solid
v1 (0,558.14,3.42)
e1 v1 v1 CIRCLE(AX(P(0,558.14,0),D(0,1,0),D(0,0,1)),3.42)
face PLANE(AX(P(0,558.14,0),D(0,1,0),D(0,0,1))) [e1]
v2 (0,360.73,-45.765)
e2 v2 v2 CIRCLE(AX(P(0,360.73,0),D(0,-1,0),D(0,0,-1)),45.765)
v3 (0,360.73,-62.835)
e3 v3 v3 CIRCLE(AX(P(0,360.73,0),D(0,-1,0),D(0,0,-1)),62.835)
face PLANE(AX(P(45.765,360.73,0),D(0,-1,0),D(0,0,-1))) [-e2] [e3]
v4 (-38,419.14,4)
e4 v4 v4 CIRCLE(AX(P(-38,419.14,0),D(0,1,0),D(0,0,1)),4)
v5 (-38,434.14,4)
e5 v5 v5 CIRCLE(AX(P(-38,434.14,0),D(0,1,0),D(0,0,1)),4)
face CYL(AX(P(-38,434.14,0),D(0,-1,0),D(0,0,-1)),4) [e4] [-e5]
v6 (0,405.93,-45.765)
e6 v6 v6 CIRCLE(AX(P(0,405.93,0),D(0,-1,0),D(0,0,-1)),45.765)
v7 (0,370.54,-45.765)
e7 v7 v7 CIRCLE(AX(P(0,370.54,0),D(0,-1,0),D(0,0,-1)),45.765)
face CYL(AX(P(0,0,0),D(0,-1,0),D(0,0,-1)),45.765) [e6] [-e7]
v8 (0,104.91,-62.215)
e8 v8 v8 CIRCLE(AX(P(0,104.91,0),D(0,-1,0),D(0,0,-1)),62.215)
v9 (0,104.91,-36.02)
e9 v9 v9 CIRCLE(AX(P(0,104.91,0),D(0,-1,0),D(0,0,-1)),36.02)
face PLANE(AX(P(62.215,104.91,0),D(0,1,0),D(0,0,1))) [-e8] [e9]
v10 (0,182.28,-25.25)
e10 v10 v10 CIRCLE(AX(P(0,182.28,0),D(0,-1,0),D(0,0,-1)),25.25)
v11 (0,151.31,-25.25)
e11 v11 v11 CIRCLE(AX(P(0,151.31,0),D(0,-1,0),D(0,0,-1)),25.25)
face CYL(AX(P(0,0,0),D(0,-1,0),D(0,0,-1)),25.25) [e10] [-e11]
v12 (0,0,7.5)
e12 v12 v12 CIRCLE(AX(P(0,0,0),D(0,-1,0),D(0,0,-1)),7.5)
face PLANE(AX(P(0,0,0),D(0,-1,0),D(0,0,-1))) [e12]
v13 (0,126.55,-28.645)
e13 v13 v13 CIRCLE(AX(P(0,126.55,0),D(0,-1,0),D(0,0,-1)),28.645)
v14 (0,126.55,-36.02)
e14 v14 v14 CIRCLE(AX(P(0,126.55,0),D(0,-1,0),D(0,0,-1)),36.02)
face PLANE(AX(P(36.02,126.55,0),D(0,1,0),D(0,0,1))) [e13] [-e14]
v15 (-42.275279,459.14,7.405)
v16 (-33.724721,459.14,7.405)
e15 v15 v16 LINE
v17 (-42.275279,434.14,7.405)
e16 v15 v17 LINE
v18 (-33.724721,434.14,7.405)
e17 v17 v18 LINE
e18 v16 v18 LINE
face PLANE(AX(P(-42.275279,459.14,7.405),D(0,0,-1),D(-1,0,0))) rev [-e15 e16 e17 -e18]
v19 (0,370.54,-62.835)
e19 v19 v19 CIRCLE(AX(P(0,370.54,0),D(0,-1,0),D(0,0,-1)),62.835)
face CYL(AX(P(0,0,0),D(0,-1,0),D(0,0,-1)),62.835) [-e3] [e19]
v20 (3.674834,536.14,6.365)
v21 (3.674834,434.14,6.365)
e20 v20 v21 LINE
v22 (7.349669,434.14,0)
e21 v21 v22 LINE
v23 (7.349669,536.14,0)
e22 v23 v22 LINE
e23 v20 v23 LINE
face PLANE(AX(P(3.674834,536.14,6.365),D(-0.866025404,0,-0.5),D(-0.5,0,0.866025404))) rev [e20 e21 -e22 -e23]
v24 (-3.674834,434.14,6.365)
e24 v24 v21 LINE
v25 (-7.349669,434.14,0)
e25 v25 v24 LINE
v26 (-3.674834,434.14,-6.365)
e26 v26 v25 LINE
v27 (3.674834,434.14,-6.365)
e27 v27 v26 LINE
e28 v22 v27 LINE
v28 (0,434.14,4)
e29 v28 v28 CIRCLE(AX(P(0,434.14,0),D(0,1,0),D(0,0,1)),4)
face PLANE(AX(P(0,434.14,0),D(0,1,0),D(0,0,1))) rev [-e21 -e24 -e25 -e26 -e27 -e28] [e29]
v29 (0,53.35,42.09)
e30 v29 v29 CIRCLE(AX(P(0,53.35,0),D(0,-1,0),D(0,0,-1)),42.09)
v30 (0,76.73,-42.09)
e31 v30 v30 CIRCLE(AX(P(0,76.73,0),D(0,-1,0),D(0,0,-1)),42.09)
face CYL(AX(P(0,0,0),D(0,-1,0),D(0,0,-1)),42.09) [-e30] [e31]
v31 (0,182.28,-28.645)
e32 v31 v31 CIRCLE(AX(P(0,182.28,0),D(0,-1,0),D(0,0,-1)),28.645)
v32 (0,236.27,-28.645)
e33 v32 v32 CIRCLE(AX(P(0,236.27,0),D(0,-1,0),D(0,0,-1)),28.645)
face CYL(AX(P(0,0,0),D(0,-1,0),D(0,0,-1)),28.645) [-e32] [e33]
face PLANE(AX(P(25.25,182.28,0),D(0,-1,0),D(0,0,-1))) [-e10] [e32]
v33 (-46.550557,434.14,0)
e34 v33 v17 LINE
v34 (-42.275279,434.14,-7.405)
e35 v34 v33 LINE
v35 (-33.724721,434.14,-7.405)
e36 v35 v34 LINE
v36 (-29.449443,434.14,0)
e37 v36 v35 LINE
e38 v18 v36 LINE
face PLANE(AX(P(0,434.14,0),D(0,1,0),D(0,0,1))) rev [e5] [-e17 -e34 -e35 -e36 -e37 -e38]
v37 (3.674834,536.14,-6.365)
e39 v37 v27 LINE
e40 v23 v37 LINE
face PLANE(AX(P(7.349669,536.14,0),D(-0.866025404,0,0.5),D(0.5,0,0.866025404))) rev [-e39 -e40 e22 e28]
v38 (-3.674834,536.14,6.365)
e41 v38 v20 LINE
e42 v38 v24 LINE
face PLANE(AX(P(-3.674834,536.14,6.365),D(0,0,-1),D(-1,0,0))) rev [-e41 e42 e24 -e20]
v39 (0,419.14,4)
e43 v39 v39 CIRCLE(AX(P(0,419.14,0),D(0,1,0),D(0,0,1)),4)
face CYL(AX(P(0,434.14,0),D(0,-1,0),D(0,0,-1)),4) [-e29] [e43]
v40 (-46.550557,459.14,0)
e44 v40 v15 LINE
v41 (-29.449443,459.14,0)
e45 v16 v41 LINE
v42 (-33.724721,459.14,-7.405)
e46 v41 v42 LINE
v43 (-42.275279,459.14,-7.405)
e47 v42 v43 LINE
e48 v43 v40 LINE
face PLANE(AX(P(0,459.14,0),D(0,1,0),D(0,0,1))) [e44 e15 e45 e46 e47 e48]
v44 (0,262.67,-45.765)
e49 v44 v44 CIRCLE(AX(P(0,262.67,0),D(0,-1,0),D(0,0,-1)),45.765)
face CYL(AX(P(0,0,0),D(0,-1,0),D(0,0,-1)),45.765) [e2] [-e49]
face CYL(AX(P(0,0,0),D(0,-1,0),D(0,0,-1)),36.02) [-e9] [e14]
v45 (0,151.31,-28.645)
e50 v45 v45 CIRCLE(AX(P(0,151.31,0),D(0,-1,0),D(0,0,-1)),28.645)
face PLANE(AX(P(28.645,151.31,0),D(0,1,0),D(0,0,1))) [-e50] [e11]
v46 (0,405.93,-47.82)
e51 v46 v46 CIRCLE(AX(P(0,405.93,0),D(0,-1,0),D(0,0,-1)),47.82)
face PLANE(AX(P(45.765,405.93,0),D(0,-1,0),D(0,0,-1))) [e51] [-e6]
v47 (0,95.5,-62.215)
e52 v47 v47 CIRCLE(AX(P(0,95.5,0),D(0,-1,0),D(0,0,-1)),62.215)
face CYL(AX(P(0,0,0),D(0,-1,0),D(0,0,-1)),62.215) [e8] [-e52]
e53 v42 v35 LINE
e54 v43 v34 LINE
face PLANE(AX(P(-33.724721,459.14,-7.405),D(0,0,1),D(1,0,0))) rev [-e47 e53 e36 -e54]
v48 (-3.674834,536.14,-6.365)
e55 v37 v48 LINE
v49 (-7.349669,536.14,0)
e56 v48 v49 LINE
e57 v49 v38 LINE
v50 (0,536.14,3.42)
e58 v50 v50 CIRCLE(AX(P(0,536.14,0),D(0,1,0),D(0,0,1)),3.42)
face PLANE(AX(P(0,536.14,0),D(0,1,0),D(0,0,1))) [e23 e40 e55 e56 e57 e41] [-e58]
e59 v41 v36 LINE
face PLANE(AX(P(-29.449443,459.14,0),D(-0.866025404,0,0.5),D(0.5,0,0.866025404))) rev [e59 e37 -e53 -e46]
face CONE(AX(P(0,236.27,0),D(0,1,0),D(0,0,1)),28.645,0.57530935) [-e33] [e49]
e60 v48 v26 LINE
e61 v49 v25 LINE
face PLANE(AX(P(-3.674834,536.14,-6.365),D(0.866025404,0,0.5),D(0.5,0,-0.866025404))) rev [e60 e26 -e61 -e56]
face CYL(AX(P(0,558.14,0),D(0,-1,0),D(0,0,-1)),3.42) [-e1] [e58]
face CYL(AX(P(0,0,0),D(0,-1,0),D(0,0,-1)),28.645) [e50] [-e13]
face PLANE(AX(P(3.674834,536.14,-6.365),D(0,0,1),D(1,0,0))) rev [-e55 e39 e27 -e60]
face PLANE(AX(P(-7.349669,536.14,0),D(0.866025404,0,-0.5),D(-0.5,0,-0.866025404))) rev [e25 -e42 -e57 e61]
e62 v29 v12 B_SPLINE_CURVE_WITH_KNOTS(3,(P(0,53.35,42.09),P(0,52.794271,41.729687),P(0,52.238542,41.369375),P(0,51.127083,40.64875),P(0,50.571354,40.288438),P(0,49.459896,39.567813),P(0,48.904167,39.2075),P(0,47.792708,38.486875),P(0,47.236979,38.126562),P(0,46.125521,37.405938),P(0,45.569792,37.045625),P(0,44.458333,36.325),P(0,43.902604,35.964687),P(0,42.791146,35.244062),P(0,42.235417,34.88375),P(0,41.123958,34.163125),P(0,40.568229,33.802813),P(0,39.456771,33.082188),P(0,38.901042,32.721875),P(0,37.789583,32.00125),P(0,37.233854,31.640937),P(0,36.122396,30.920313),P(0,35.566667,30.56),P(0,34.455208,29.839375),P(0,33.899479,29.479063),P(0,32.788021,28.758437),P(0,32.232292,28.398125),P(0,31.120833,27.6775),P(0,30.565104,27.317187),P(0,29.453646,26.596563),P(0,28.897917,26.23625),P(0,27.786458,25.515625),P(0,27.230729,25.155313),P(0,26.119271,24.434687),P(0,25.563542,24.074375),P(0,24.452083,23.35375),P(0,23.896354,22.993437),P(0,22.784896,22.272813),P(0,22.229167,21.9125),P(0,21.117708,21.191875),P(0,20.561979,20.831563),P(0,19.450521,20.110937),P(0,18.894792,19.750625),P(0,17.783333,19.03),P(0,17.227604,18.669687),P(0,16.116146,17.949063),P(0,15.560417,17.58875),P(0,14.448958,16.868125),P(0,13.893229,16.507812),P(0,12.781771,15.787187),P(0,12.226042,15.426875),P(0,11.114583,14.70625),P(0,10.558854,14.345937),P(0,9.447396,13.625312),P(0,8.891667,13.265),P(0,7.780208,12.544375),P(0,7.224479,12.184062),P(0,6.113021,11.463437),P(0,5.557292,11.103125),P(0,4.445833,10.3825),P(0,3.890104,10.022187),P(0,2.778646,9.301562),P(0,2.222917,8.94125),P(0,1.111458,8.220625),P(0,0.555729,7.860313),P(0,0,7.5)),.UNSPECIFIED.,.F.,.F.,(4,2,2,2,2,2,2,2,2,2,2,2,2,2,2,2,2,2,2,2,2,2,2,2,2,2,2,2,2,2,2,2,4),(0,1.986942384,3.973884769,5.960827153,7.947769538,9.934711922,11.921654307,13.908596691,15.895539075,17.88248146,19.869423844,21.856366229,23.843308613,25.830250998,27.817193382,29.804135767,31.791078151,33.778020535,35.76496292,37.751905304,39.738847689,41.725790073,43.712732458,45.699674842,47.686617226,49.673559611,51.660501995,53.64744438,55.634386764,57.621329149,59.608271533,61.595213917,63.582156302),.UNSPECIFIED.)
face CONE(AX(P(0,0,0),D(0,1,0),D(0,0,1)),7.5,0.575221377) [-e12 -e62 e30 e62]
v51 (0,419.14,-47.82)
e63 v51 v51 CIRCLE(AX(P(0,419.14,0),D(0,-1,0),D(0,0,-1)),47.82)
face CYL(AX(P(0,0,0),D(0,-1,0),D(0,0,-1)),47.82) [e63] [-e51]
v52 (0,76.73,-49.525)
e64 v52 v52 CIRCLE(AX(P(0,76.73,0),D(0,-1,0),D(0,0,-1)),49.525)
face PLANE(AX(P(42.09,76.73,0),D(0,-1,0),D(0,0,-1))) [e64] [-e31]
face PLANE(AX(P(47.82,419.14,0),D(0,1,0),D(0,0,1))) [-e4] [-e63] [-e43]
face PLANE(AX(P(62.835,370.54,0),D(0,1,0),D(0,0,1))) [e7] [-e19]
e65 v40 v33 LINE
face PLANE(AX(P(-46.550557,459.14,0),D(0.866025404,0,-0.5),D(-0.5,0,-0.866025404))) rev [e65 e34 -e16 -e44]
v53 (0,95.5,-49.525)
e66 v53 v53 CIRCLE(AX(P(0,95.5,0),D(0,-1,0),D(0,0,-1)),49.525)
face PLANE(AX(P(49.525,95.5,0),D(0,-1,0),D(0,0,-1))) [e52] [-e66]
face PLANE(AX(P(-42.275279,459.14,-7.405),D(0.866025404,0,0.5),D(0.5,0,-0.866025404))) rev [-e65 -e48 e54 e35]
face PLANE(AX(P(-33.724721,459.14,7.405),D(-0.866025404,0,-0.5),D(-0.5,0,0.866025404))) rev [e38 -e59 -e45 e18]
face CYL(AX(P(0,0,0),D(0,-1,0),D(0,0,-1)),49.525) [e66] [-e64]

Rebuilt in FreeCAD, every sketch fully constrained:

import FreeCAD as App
import Part
import Sketcher

V = App.Vector
Q = App.Units.Quantity

doc = App.newDocument("Part")
params = doc.addObject("Spreadsheet::Sheet", "Params")
for row, (alias, value) in enumerate([
    ("sketch1_width", "7.5 mm"),
    ("sketch1_width2", "12.69 mm"),
    ("sketch1_width3", "17.07 mm"),
    ("sketch1_width4", "47.82 mm"),
    ("sketch1_height", "23.38 mm"),
    ("revolution_angle", "360 deg"),
    ("sketch2_diameter", "8 mm"),
    ("pad1_length", "15 mm"),
    ("pad2_length", "102 mm"),
    ("sketch4_diameter", "6.84 mm"),
    ("pad3_length", "22 mm"),
    ("pad4_length", "25 mm"),
], start=1):
    params.set(f"A{row}", alias)
    params.set(f"B{row}", "=" + value)
    params.setAlias(f"B{row}", alias)

body = doc.addObject("PartDesign::Body", "Body")

# Sketch on XY plane
sketch1 = body.newObject("Sketcher::SketchObject", "Sketch")
sketch1.AttachmentSupport = (doc.getObject("XY_Plane"), [""])
sketch1.MapMode = "FlatFace"
sketch1.addGeometry([
    Part.LineSegment(V(0, 0, 0), V(7.5, 0, 0)),  # 0
    Part.LineSegment(V(7.5, 0, 0), V(42.1, 53.4, 0)),  # 1
    Part.LineSegment(V(42.1, 53.4, 0), V(42.1, 76.7, 0)),  # 2
    Part.LineSegment(V(42.1, 76.7, 0), V(49.5, 76.7, 0)),  # 3
    Part.LineSegment(V(49.5, 76.7, 0), V(49.5, 95.5, 0)),  # 4
    Part.LineSegment(V(49.5, 95.5, 0), V(62.2, 95.5, 0)),  # 5
    Part.LineSegment(V(62.2, 95.5, 0), V(62.2, 104.9, 0)),  # 6
    Part.LineSegment(V(62.2, 104.9, 0), V(36, 104.9, 0)),  # 7
    Part.LineSegment(V(36, 104.9, 0), V(36, 126.5, 0)),  # 8
    Part.LineSegment(V(36, 126.5, 0), V(28.6, 126.5, 0)),  # 9
    Part.LineSegment(V(28.6, 126.5, 0), V(28.6, 151.3, 0)),  # 10
    Part.LineSegment(V(28.6, 151.3, 0), V(25.2, 151.3, 0)),  # 11
    Part.LineSegment(V(25.2, 151.3, 0), V(25.2, 182.3, 0)),  # 12
    Part.LineSegment(V(25.2, 182.3, 0), V(28.6, 182.3, 0)),  # 13
    Part.LineSegment(V(28.6, 182.3, 0), V(28.6, 236.3, 0)),  # 14
    Part.LineSegment(V(28.6, 236.3, 0), V(45.8, 262.7, 0)),  # 15
    Part.LineSegment(V(45.8, 262.7, 0), V(45.8, 360.7, 0)),  # 16
    Part.LineSegment(V(45.8, 360.7, 0), V(62.8, 360.7, 0)),  # 17
    Part.LineSegment(V(62.8, 360.7, 0), V(62.8, 370.5, 0)),  # 18
    Part.LineSegment(V(62.8, 370.5, 0), V(45.8, 370.5, 0)),  # 19
    Part.LineSegment(V(45.8, 370.5, 0), V(45.8, 405.9, 0)),  # 20
    Part.LineSegment(V(45.8, 405.9, 0), V(47.8, 405.9, 0)),  # 21
    Part.LineSegment(V(47.8, 405.9, 0), V(47.8, 419.1, 0)),  # 22
    Part.LineSegment(V(47.8, 419.1, 0), V(0, 419.1, 0)),  # 23
    Part.LineSegment(V(0, 419.1, 0), V(0, 0, 0)),  # 24
], False)
sketch1.addConstraint([
    Sketcher.Constraint("Coincident", 0, 2, 1, 1),
    Sketcher.Constraint("Coincident", 1, 2, 2, 1),
    Sketcher.Constraint("Coincident", 2, 2, 3, 1),
    Sketcher.Constraint("Coincident", 3, 2, 4, 1),
    Sketcher.Constraint("Coincident", 4, 2, 5, 1),
    Sketcher.Constraint("Coincident", 5, 2, 6, 1),
    Sketcher.Constraint("Coincident", 6, 2, 7, 1),
    Sketcher.Constraint("Coincident", 7, 2, 8, 1),
    Sketcher.Constraint("Coincident", 8, 2, 9, 1),
    Sketcher.Constraint("Coincident", 9, 2, 10, 1),
    Sketcher.Constraint("Coincident", 10, 2, 11, 1),
    Sketcher.Constraint("Coincident", 11, 2, 12, 1),
    Sketcher.Constraint("Coincident", 12, 2, 13, 1),
    Sketcher.Constraint("Coincident", 13, 2, 14, 1),
    Sketcher.Constraint("Coincident", 14, 2, 15, 1),
    Sketcher.Constraint("Coincident", 15, 2, 16, 1),
    Sketcher.Constraint("Coincident", 16, 2, 17, 1),
    Sketcher.Constraint("Coincident", 17, 2, 18, 1),
    Sketcher.Constraint("Coincident", 18, 2, 19, 1),
    Sketcher.Constraint("Coincident", 19, 2, 20, 1),
    Sketcher.Constraint("Coincident", 20, 2, 21, 1),
    Sketcher.Constraint("Coincident", 21, 2, 22, 1),
    Sketcher.Constraint("Coincident", 22, 2, 23, 1),
    Sketcher.Constraint("Coincident", 23, 2, 24, 1),
    Sketcher.Constraint("Coincident", 24, 2, 0, 1),
    Sketcher.Constraint("Horizontal", 0),
    Sketcher.Constraint("Vertical", 2),
    Sketcher.Constraint("Horizontal", 3),
    Sketcher.Constraint("Vertical", 4),
    Sketcher.Constraint("Horizontal", 5),
    Sketcher.Constraint("Vertical", 6),
    Sketcher.Constraint("Horizontal", 7),
    Sketcher.Constraint("Vertical", 8),
    Sketcher.Constraint("Horizontal", 9),
    Sketcher.Constraint("Vertical", 10),
    Sketcher.Constraint("Horizontal", 11),
    Sketcher.Constraint("Vertical", 12),
    Sketcher.Constraint("Horizontal", 13),
    Sketcher.Constraint("Vertical", 14),
    Sketcher.Constraint("Vertical", 16),
    Sketcher.Constraint("Horizontal", 17),
    Sketcher.Constraint("Vertical", 18),
    Sketcher.Constraint("Horizontal", 19),
    Sketcher.Constraint("Vertical", 20),
    Sketcher.Constraint("Horizontal", 21),
    Sketcher.Constraint("Vertical", 22),
    Sketcher.Constraint("Horizontal", 23),
    Sketcher.Constraint("Vertical", 24),
    Sketcher.Constraint("Coincident", 24, 2, -1, 1),
    Sketcher.Constraint("Vertical", 10, 2, 13, 2),
    Sketcher.Constraint("Vertical", 16, 2, 19, 2),
    Sketcher.Constraint("DistanceX", 0, 1, 0, 2, Q("7.5 mm")),
    Sketcher.Constraint("DistanceX", 5, 1, 5, 2, Q("12.69 mm")),
    Sketcher.Constraint("DistanceX", 17, 1, 17, 2, Q("17.07 mm")),
    Sketcher.Constraint("DistanceX", 23, 2, 23, 1, Q("47.82 mm")),
    Sketcher.Constraint("DistanceY", 2, 1, 2, 2, Q("23.38 mm")),
    Sketcher.Constraint("DistanceY", 4, 1, 4, 2, Q("18.77 mm")),
    Sketcher.Constraint("DistanceY", 6, 1, 6, 2, Q("9.41 mm")),
    Sketcher.Constraint("DistanceY", 8, 1, 8, 2, Q("21.64 mm")),
    Sketcher.Constraint("DistanceY", 10, 1, 10, 2, Q("24.76 mm")),
    Sketcher.Constraint("DistanceY", 12, 1, 12, 2, Q("30.97 mm")),
    Sketcher.Constraint("DistanceY", 14, 1, 14, 2, Q("53.99 mm")),
    Sketcher.Constraint("DistanceY", 16, 1, 16, 2, Q("98.06 mm")),
    Sketcher.Constraint("DistanceY", 18, 1, 18, 2, Q("9.81 mm")),
    Sketcher.Constraint("DistanceY", 20, 1, 20, 2, Q("35.39 mm")),
    Sketcher.Constraint("DistanceY", 22, 1, 22, 2, Q("13.21 mm")),
    Sketcher.Constraint("DistanceY", 24, 2, 24, 1, Q("419.14 mm")),
    Sketcher.Constraint("DistanceY", -1, 1, 4, 2, Q("95.5 mm")),
    Sketcher.Constraint("DistanceX", 3, 1, 3, 2, Q("7.435 mm")),
    Sketcher.Constraint("DistanceX", 7, 2, 7, 1, Q("26.195 mm")),
    Sketcher.Constraint("DistanceX", 9, 2, 9, 1, Q("7.375 mm")),
    Sketcher.Constraint("DistanceX", 11, 2, 11, 1, Q("3.395 mm")),
    Sketcher.Constraint("DistanceX", 21, 1, 21, 2, Q("2.055 mm")),
    Sketcher.Constraint("DistanceX", -1, 1, 1, 2, Q("42.09 mm")),
])
sketch1.setExpression("Constraints[51]", "Params.sketch1_width")
sketch1.setExpression("Constraints[52]", "Params.sketch1_width2")
sketch1.setExpression("Constraints[53]", "Params.sketch1_width3")
sketch1.setExpression("Constraints[54]", "Params.sketch1_width4")
sketch1.setExpression("Constraints[55]", "Params.sketch1_height")
revolution = body.newObject("PartDesign::Revolution", "Revolution")
revolution.Profile = sketch1
revolution.ReferenceAxis = (sketch1, ["V_Axis"])
revolution.setExpression("Angle", "Params.revolution_angle")

# Sketch on XZ plane
sketch2 = body.newObject("Sketcher::SketchObject", "Sketch001")
sketch2.AttachmentSupport = (doc.getObject("XZ_Plane"), [""])
sketch2.MapMode = "FlatFace"
sketch2.AttachmentOffset = App.Placement(V(0, 0, -419.14), App.Rotation())
sketch2.addGeometry([
    Part.Circle(V(0, 0, 0), V(0, 0, 1), 4),
    Part.Circle(V(-38, 0, 0), V(0, 0, 1), 4),
], False)
sketch2.addConstraint([
    Sketcher.Constraint("Coincident", 0, 3, -1, 1),
    Sketcher.Constraint("Equal", 0, 1),
    Sketcher.Constraint("PointOnObject", 1, 3, -1),
    Sketcher.Constraint("Diameter", 0, Q("8 mm")),
    Sketcher.Constraint("DistanceX", 1, 3, -1, 1, Q("38 mm")),
])
sketch2.setExpression("Constraints[3]", "Params.sketch2_diameter")
pad1 = body.newObject("PartDesign::Pad", "Pad")
pad1.Profile = sketch2
pad1.setExpression("Length", "Params.pad1_length")
pad1.Reversed = True

# Sketch on XZ plane
sketch3 = body.newObject("Sketcher::SketchObject", "Sketch002")
sketch3.AttachmentSupport = (doc.getObject("XZ_Plane"), [""])
sketch3.MapMode = "FlatFace"
sketch3.AttachmentOffset = App.Placement(V(0, 0, -434.14), App.Rotation())
sketch3.addGeometry([
    Part.LineSegment(V(4, 6, 0), V(7, 0, 0)),  # 0
    Part.LineSegment(V(7, 0, 0), V(4, -6, 0)),  # 1
    Part.LineSegment(V(4, -6, 0), V(-4, -6, 0)),  # 2
    Part.LineSegment(V(-4, -6, 0), V(-7, 0, 0)),  # 3
    Part.LineSegment(V(-7, 0, 0), V(-4, 6, 0)),  # 4
    Part.LineSegment(V(-4, 6, 0), V(4, 6, 0)),  # 5
], False)
sketch3.addConstraint([
    Sketcher.Constraint("Coincident", 0, 2, 1, 1),
    Sketcher.Constraint("Coincident", 1, 2, 2, 1),
    Sketcher.Constraint("Coincident", 2, 2, 3, 1),
    Sketcher.Constraint("Coincident", 3, 2, 4, 1),
    Sketcher.Constraint("Coincident", 4, 2, 5, 1),
    Sketcher.Constraint("Coincident", 5, 2, 0, 1),
    Sketcher.Constraint("Horizontal", 2),
    Sketcher.Constraint("Horizontal", 5),
    Sketcher.Constraint("Symmetric", 0, 2, 3, 2, -1, 1),
    Sketcher.Constraint("Symmetric", 1, 2, 4, 2, -1, 1),
    Sketcher.Constraint("PointOnObject", 0, 2, -1),
    Sketcher.Constraint("Parallel", 0, 3),
    Sketcher.Constraint("Vertical", 2, 2, 4, 2),
    Sketcher.Constraint("Angle", 0, Q("-60 deg")),
    Sketcher.Constraint("DistanceY", 2, 2, 4, 2, Q("12.73 mm")),
    Sketcher.Constraint("DistanceX", 2, 2, 2, 1, Q("7.349669 mm")),
])
pad2 = body.newObject("PartDesign::Pad", "Pad001")
pad2.Profile = sketch3
pad2.setExpression("Length", "Params.pad2_length")
pad2.Reversed = True

# Sketch on XZ plane
sketch4 = body.newObject("Sketcher::SketchObject", "Sketch003")
sketch4.AttachmentSupport = (doc.getObject("XZ_Plane"), [""])
sketch4.MapMode = "FlatFace"
sketch4.AttachmentOffset = App.Placement(V(0, 0, -536.14), App.Rotation())
sketch4.addGeometry(Part.Circle(V(0, 0, 0), V(0, 0, 1), 3.4), False)
sketch4.addConstraint([
    Sketcher.Constraint("Coincident", 0, 3, -1, 1),
    Sketcher.Constraint("Diameter", 0, Q("6.84 mm")),
])
sketch4.setExpression("Constraints[1]", "Params.sketch4_diameter")
pad3 = body.newObject("PartDesign::Pad", "Pad002")
pad3.Profile = sketch4
pad3.setExpression("Length", "Params.pad3_length")
pad3.Reversed = True

# Sketch on XZ plane
sketch5 = body.newObject("Sketcher::SketchObject", "Sketch004")
sketch5.AttachmentSupport = (doc.getObject("XZ_Plane"), [""])
sketch5.MapMode = "FlatFace"
sketch5.AttachmentOffset = App.Placement(V(0, 0, -434.14), App.Rotation())
sketch5.addGeometry([
    Part.LineSegment(V(-29, 0, 0), V(-34, -7, 0)),  # 0
    Part.LineSegment(V(-34, -7, 0), V(-42, -7, 0)),  # 1
    Part.LineSegment(V(-42, -7, 0), V(-47, 0, 0)),  # 2
    Part.LineSegment(V(-47, 0, 0), V(-42, 7, 0)),  # 3
    Part.LineSegment(V(-42, 7, 0), V(-34, 7, 0)),  # 4
    Part.LineSegment(V(-34, 7, 0), V(-29, 0, 0)),  # 5
], False)
sketch5.addConstraint([
    Sketcher.Constraint("Coincident", 0, 2, 1, 1),
    Sketcher.Constraint("Coincident", 1, 2, 2, 1),
    Sketcher.Constraint("Coincident", 2, 2, 3, 1),
    Sketcher.Constraint("Coincident", 3, 2, 4, 1),
    Sketcher.Constraint("Coincident", 4, 2, 5, 1),
    Sketcher.Constraint("Coincident", 5, 2, 0, 1),
    Sketcher.Constraint("Horizontal", 1),
    Sketcher.Constraint("Horizontal", 4),
    Sketcher.Constraint("Symmetric", 1, 2, 3, 2, -1),
    Sketcher.Constraint("PointOnObject", 2, 2, -1),
    Sketcher.Constraint("PointOnObject", 5, 2, -1),
    Sketcher.Constraint("Parallel", 0, 3),
    Sketcher.Constraint("Parallel", 2, 5),
    Sketcher.Constraint("Angle", 0, Q("-120 deg")),
    Sketcher.Constraint("DistanceY", 1, 2, 3, 2, Q("14.81 mm")),
    Sketcher.Constraint("DistanceX", 1, 2, 1, 1, Q("8.550557 mm")),
    Sketcher.Constraint("DistanceX", 0, 2, -1, 1, Q("33.724721 mm")),
])
pad4 = body.newObject("PartDesign::Pad", "Pad003")
pad4.Profile = sketch5
pad4.setExpression("Length", "Params.pad4_length")
pad4.Reversed = True

doc.recompute()
